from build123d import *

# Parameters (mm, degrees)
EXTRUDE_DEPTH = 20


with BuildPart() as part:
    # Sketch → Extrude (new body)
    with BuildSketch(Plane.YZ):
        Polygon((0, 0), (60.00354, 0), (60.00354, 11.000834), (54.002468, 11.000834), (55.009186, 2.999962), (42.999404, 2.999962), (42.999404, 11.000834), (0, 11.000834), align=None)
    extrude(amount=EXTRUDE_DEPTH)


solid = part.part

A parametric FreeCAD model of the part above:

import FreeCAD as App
import Part
import Sketcher
from FreeCAD import Vector
Q = App.Units.Quantity


def add_polygon(sketch, points):
    """Adds a closed chain of lines whose ends are joined by coincident constraints."""
    first, n = sketch.GeometryCount, len(points)
    for a, b in zip(points, points[1:] + points[:1]):
        sketch.addGeometry(Part.LineSegment(App.Vector(*a, 0), App.Vector(*b, 0)), False)
    for i in range(n):
        sketch.addConstraint(Sketcher.Constraint("Coincident", first + i, 2, first + (i + 1) % n, 1))

doc = App.newDocument("Part")
body = doc.addObject("PartDesign::Body", "Body")

# Sketch on YZ plane
sketch1 = body.newObject("Sketcher::SketchObject", "Sketch")
sketch1.AttachmentSupport = (doc.getObject("YZ_Plane"), [""])
sketch1.MapMode = "FlatFace"
add_polygon(sketch1, [(0, 0), (60.00354, 0), (60.00354, 11.000834), (54.002468, 11.000834), (55.009186, 2.999962), (42.999404, 2.999962), (42.999404, 11.000834), (0, 11.000834)])  # lines 0-7
sketch1.addConstraint([
    Sketcher.Constraint("Horizontal", 0),
    Sketcher.Constraint("Vertical", 1),
    Sketcher.Constraint("Horizontal", 2),
    Sketcher.Constraint("Horizontal", 4),
    Sketcher.Constraint("Vertical", 5),
    Sketcher.Constraint("Horizontal", 6),
    Sketcher.Constraint("Vertical", 7),
    Sketcher.Constraint("Coincident", 7, 2, -1, 1),
    Sketcher.Constraint("Horizontal", 2, 2, 5, 2),
    Sketcher.Constraint("DistanceX", 0, 1, 0, 2, Q("60.00354 mm")),
    Sketcher.Constraint("DistanceY", 5, 1, 5, 2, Q("8.000872 mm")),
    Sketcher.Constraint("Distance", 3, Q("8.063959 mm")),
    Sketcher.Constraint("DistanceX", 2, 2, 2, 1, Q("6.001072 mm")),
    Sketcher.Constraint("DistanceX", 4, 2, 4, 1, Q("12.009782 mm")),
    Sketcher.Constraint("DistanceY", 1, 1, 1, 2, Q("11.000834 mm")),
])
pad1 = body.newObject("PartDesign::Pad", "Pad")
pad1.Profile = sketch1
pad1.Length = 20

doc.recompute()
